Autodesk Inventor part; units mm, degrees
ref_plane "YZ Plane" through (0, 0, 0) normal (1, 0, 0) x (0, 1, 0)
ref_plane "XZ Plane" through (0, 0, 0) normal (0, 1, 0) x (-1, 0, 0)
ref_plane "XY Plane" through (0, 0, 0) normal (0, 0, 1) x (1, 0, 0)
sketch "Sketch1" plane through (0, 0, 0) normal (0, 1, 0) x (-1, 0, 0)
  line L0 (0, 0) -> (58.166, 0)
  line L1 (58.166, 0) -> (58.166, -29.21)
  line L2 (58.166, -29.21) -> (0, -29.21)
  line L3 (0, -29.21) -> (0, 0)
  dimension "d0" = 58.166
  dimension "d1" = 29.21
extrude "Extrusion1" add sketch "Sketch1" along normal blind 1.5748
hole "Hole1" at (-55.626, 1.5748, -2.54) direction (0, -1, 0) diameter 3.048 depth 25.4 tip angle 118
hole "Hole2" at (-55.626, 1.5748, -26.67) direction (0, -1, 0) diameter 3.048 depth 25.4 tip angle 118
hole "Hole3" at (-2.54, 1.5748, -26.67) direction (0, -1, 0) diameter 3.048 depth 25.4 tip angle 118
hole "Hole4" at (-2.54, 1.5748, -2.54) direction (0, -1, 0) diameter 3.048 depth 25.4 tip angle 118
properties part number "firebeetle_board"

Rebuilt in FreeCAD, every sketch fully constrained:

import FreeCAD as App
import Part
import Sketcher
from FreeCAD import Vector
Q = App.Units.Quantity


def add_polygon(sketch, points):
    """Adds a closed chain of lines whose ends are joined by coincident constraints."""
    first, n = sketch.GeometryCount, len(points)
    for a, b in zip(points, points[1:] + points[:1]):
        sketch.addGeometry(Part.LineSegment(App.Vector(*a, 0), App.Vector(*b, 0)), False)
    for i in range(n):
        sketch.addConstraint(Sketcher.Constraint("Coincident", first + i, 2, first + (i + 1) % n, 1))

doc = App.newDocument("Part")
params = doc.addObject("Spreadsheet::Sheet", "Params")
for row, (alias, value) in enumerate([
    ("sketch1_width", "2.29 in"),
    ("sketch1_height", "1.15 in"),
    ("pad1_length", "0.062 in"),
    ("sketch2_diameter", "0.12 in"),
    ("hole_diameter", "0.12 in"),
    ("hole_depth", "1 in"),
    ("sketch3_diameter", "0.12 in"),
    ("hole2_diameter", "0.12 in"),
    ("hole2_depth", "1 in"),
    ("sketch4_diameter", "0.12 in"),
    ("hole3_diameter", "0.12 in"),
    ("hole3_depth", "1 in"),
    ("sketch5_diameter", "0.12 in"),
    ("hole4_diameter", "0.12 in"),
    ("hole4_depth", "1 in"),
], start=1):
    params.set(f"A{row}", alias)
    params.set(f"B{row}", "=" + value)
    params.setAlias(f"B{row}", alias)

body = doc.addObject("PartDesign::Body", "Body")

# Sketch on XZ plane
sketch1 = body.newObject("Sketcher::SketchObject", "Sketch")
sketch1.AttachmentSupport = (doc.getObject("XZ_Plane"), [""])
sketch1.MapMode = "FlatFace"
add_polygon(sketch1, [(-58.166, 0), (0, 0), (0, -29.21), (-58.166, -29.21)])  # lines 0-3
sketch1.addConstraint(Sketcher.Constraint("Horizontal", 0))
sketch1.addConstraint(Sketcher.Constraint("Vertical", 1))
sketch1.addConstraint(Sketcher.Constraint("Horizontal", 2))
sketch1.addConstraint(Sketcher.Constraint("Vertical", 3))
sketch1.addConstraint(Sketcher.Constraint("Coincident", 0, 2, -1, 1))
sketch1.addConstraint(Sketcher.Constraint("DistanceX", 0, 1, 0, 2, Q("2.29 in")))
sketch1.addConstraint(Sketcher.Constraint("DistanceY", 1, 2, 1, 1, Q("1.15 in")))
sketch1.setExpression("Constraints[9]", "Params.sketch1_width")
sketch1.setExpression("Constraints[10]", "Params.sketch1_height")
pad1 = body.newObject("PartDesign::Pad", "Pad")
pad1.Profile = sketch1
pad1.setExpression("Length", "Params.pad1_length")
pad1.Reversed = True

# Sketch on XZ plane
sketch2 = body.newObject("Sketcher::SketchObject", "Sketch001")
sketch2.AttachmentSupport = (doc.getObject("XZ_Plane"), [""])
sketch2.MapMode = "FlatFace"
sketch2.AttachmentOffset = App.Placement(Vector(0, 0, -0.062 * 25.4), App.Rotation())
sketch2.addGeometry(Part.Circle(Vector(-55.626, -2.54, 0), Vector(0, 0, 1), 1.524), False)
sketch2.addConstraint(Sketcher.Constraint("Diameter", 0, Q("0.12 in")))
sketch2.addConstraint(Sketcher.Constraint("DistanceY", 0, 3, -1, 1, Q("0.1 in")))
sketch2.addConstraint(Sketcher.Constraint("DistanceX", 0, 3, -1, 1, Q("2.19 in")))
sketch2.setExpression("Constraints[0]", "Params.sketch2_diameter")
doc.recompute()
hole = body.newObject("PartDesign::Hole", "Hole")
hole.Profile = sketch2
hole.ThreadType = "None"
hole.setExpression("Diameter", "Params.hole_diameter")
hole.DepthType = "Dimension"
hole.setExpression("Depth", "Params.hole_depth")
hole.DrillPoint = "Angled"
hole.DrillPointAngle = 118
hole.Reversed = True

# Sketch on XZ plane
sketch3 = body.newObject("Sketcher::SketchObject", "Sketch002")
sketch3.AttachmentSupport = (doc.getObject("XZ_Plane"), [""])
sketch3.MapMode = "FlatFace"
sketch3.AttachmentOffset = App.Placement(Vector(0, 0, -0.062 * 25.4), App.Rotation())
sketch3.addGeometry(Part.Circle(Vector(-55.626, -26.67, 0), Vector(0, 0, 1), 1.524), False)
sketch3.addConstraint(Sketcher.Constraint("Diameter", 0, Q("0.12 in")))
sketch3.addConstraint(Sketcher.Constraint("DistanceX", 0, 3, -1, 1, Q("2.19 in")))
sketch3.addConstraint(Sketcher.Constraint("DistanceY", 0, 3, -1, 1, Q("1.05 in")))
sketch3.setExpression("Constraints[0]", "Params.sketch3_diameter")
doc.recompute()
hole2 = body.newObject("PartDesign::Hole", "Hole001")
hole2.Profile = sketch3
hole2.ThreadType = "None"
hole2.setExpression("Diameter", "Params.hole2_diameter")
hole2.DepthType = "Dimension"
hole2.setExpression("Depth", "Params.hole2_depth")
hole2.DrillPoint = "Angled"
hole2.DrillPointAngle = 118
hole2.Reversed = True

# Sketch on XZ plane
sketch4 = body.newObject("Sketcher::SketchObject", "Sketch003")
sketch4.AttachmentSupport = (doc.getObject("XZ_Plane"), [""])
sketch4.MapMode = "FlatFace"
sketch4.AttachmentOffset = App.Placement(Vector(0, 0, -0.062 * 25.4), App.Rotation())
sketch4.addGeometry(Part.Circle(Vector(-2.54, -26.67, 0), Vector(0, 0, 1), 1.524), False)
sketch4.addConstraint(Sketcher.Constraint("Diameter", 0, Q("0.12 in")))
sketch4.addConstraint(Sketcher.Constraint("DistanceX", 0, 3, -1, 1, Q("0.1 in")))
sketch4.addConstraint(Sketcher.Constraint("DistanceY", 0, 3, -1, 1, Q("1.05 in")))
sketch4.setExpression("Constraints[0]", "Params.sketch4_diameter")
doc.recompute()
hole3 = body.newObject("PartDesign::Hole", "Hole002")
hole3.Profile = sketch4
hole3.ThreadType = "None"
hole3.setExpression("Diameter", "Params.hole3_diameter")
hole3.DepthType = "Dimension"
hole3.setExpression("Depth", "Params.hole3_depth")
hole3.DrillPoint = "Angled"
hole3.DrillPointAngle = 118
hole3.Reversed = True

# Sketch on XZ plane
sketch5 = body.newObject("Sketcher::SketchObject", "Sketch004")
sketch5.AttachmentSupport = (doc.getObject("XZ_Plane"), [""])
sketch5.MapMode = "FlatFace"
sketch5.AttachmentOffset = App.Placement(Vector(0, 0, -0.062 * 25.4), App.Rotation())
sketch5.addGeometry(Part.Circle(Vector(-2.54, -2.54, 0), Vector(0, 0, 1), 1.524), False)
sketch5.addConstraint(Sketcher.Constraint("Diameter", 0, Q("0.12 in")))
sketch5.addConstraint(Sketcher.Constraint("DistanceX", 0, 3, -1, 1, Q("0.1 in")))
sketch5.addConstraint(Sketcher.Constraint("DistanceY", 0, 3, -1, 1, Q("0.1 in")))
sketch5.setExpression("Constraints[0]", "Params.sketch5_diameter")
doc.recompute()
hole4 = body.newObject("PartDesign::Hole", "Hole003")
hole4.Profile = sketch5
hole4.ThreadType = "None"
hole4.setExpression("Diameter", "Params.hole4_diameter")
hole4.DepthType = "Dimension"
hole4.setExpression("Depth", "Params.hole4_depth")
hole4.DrillPoint = "Angled"
hole4.DrillPointAngle = 118
hole4.Reversed = True

doc.recompute()
